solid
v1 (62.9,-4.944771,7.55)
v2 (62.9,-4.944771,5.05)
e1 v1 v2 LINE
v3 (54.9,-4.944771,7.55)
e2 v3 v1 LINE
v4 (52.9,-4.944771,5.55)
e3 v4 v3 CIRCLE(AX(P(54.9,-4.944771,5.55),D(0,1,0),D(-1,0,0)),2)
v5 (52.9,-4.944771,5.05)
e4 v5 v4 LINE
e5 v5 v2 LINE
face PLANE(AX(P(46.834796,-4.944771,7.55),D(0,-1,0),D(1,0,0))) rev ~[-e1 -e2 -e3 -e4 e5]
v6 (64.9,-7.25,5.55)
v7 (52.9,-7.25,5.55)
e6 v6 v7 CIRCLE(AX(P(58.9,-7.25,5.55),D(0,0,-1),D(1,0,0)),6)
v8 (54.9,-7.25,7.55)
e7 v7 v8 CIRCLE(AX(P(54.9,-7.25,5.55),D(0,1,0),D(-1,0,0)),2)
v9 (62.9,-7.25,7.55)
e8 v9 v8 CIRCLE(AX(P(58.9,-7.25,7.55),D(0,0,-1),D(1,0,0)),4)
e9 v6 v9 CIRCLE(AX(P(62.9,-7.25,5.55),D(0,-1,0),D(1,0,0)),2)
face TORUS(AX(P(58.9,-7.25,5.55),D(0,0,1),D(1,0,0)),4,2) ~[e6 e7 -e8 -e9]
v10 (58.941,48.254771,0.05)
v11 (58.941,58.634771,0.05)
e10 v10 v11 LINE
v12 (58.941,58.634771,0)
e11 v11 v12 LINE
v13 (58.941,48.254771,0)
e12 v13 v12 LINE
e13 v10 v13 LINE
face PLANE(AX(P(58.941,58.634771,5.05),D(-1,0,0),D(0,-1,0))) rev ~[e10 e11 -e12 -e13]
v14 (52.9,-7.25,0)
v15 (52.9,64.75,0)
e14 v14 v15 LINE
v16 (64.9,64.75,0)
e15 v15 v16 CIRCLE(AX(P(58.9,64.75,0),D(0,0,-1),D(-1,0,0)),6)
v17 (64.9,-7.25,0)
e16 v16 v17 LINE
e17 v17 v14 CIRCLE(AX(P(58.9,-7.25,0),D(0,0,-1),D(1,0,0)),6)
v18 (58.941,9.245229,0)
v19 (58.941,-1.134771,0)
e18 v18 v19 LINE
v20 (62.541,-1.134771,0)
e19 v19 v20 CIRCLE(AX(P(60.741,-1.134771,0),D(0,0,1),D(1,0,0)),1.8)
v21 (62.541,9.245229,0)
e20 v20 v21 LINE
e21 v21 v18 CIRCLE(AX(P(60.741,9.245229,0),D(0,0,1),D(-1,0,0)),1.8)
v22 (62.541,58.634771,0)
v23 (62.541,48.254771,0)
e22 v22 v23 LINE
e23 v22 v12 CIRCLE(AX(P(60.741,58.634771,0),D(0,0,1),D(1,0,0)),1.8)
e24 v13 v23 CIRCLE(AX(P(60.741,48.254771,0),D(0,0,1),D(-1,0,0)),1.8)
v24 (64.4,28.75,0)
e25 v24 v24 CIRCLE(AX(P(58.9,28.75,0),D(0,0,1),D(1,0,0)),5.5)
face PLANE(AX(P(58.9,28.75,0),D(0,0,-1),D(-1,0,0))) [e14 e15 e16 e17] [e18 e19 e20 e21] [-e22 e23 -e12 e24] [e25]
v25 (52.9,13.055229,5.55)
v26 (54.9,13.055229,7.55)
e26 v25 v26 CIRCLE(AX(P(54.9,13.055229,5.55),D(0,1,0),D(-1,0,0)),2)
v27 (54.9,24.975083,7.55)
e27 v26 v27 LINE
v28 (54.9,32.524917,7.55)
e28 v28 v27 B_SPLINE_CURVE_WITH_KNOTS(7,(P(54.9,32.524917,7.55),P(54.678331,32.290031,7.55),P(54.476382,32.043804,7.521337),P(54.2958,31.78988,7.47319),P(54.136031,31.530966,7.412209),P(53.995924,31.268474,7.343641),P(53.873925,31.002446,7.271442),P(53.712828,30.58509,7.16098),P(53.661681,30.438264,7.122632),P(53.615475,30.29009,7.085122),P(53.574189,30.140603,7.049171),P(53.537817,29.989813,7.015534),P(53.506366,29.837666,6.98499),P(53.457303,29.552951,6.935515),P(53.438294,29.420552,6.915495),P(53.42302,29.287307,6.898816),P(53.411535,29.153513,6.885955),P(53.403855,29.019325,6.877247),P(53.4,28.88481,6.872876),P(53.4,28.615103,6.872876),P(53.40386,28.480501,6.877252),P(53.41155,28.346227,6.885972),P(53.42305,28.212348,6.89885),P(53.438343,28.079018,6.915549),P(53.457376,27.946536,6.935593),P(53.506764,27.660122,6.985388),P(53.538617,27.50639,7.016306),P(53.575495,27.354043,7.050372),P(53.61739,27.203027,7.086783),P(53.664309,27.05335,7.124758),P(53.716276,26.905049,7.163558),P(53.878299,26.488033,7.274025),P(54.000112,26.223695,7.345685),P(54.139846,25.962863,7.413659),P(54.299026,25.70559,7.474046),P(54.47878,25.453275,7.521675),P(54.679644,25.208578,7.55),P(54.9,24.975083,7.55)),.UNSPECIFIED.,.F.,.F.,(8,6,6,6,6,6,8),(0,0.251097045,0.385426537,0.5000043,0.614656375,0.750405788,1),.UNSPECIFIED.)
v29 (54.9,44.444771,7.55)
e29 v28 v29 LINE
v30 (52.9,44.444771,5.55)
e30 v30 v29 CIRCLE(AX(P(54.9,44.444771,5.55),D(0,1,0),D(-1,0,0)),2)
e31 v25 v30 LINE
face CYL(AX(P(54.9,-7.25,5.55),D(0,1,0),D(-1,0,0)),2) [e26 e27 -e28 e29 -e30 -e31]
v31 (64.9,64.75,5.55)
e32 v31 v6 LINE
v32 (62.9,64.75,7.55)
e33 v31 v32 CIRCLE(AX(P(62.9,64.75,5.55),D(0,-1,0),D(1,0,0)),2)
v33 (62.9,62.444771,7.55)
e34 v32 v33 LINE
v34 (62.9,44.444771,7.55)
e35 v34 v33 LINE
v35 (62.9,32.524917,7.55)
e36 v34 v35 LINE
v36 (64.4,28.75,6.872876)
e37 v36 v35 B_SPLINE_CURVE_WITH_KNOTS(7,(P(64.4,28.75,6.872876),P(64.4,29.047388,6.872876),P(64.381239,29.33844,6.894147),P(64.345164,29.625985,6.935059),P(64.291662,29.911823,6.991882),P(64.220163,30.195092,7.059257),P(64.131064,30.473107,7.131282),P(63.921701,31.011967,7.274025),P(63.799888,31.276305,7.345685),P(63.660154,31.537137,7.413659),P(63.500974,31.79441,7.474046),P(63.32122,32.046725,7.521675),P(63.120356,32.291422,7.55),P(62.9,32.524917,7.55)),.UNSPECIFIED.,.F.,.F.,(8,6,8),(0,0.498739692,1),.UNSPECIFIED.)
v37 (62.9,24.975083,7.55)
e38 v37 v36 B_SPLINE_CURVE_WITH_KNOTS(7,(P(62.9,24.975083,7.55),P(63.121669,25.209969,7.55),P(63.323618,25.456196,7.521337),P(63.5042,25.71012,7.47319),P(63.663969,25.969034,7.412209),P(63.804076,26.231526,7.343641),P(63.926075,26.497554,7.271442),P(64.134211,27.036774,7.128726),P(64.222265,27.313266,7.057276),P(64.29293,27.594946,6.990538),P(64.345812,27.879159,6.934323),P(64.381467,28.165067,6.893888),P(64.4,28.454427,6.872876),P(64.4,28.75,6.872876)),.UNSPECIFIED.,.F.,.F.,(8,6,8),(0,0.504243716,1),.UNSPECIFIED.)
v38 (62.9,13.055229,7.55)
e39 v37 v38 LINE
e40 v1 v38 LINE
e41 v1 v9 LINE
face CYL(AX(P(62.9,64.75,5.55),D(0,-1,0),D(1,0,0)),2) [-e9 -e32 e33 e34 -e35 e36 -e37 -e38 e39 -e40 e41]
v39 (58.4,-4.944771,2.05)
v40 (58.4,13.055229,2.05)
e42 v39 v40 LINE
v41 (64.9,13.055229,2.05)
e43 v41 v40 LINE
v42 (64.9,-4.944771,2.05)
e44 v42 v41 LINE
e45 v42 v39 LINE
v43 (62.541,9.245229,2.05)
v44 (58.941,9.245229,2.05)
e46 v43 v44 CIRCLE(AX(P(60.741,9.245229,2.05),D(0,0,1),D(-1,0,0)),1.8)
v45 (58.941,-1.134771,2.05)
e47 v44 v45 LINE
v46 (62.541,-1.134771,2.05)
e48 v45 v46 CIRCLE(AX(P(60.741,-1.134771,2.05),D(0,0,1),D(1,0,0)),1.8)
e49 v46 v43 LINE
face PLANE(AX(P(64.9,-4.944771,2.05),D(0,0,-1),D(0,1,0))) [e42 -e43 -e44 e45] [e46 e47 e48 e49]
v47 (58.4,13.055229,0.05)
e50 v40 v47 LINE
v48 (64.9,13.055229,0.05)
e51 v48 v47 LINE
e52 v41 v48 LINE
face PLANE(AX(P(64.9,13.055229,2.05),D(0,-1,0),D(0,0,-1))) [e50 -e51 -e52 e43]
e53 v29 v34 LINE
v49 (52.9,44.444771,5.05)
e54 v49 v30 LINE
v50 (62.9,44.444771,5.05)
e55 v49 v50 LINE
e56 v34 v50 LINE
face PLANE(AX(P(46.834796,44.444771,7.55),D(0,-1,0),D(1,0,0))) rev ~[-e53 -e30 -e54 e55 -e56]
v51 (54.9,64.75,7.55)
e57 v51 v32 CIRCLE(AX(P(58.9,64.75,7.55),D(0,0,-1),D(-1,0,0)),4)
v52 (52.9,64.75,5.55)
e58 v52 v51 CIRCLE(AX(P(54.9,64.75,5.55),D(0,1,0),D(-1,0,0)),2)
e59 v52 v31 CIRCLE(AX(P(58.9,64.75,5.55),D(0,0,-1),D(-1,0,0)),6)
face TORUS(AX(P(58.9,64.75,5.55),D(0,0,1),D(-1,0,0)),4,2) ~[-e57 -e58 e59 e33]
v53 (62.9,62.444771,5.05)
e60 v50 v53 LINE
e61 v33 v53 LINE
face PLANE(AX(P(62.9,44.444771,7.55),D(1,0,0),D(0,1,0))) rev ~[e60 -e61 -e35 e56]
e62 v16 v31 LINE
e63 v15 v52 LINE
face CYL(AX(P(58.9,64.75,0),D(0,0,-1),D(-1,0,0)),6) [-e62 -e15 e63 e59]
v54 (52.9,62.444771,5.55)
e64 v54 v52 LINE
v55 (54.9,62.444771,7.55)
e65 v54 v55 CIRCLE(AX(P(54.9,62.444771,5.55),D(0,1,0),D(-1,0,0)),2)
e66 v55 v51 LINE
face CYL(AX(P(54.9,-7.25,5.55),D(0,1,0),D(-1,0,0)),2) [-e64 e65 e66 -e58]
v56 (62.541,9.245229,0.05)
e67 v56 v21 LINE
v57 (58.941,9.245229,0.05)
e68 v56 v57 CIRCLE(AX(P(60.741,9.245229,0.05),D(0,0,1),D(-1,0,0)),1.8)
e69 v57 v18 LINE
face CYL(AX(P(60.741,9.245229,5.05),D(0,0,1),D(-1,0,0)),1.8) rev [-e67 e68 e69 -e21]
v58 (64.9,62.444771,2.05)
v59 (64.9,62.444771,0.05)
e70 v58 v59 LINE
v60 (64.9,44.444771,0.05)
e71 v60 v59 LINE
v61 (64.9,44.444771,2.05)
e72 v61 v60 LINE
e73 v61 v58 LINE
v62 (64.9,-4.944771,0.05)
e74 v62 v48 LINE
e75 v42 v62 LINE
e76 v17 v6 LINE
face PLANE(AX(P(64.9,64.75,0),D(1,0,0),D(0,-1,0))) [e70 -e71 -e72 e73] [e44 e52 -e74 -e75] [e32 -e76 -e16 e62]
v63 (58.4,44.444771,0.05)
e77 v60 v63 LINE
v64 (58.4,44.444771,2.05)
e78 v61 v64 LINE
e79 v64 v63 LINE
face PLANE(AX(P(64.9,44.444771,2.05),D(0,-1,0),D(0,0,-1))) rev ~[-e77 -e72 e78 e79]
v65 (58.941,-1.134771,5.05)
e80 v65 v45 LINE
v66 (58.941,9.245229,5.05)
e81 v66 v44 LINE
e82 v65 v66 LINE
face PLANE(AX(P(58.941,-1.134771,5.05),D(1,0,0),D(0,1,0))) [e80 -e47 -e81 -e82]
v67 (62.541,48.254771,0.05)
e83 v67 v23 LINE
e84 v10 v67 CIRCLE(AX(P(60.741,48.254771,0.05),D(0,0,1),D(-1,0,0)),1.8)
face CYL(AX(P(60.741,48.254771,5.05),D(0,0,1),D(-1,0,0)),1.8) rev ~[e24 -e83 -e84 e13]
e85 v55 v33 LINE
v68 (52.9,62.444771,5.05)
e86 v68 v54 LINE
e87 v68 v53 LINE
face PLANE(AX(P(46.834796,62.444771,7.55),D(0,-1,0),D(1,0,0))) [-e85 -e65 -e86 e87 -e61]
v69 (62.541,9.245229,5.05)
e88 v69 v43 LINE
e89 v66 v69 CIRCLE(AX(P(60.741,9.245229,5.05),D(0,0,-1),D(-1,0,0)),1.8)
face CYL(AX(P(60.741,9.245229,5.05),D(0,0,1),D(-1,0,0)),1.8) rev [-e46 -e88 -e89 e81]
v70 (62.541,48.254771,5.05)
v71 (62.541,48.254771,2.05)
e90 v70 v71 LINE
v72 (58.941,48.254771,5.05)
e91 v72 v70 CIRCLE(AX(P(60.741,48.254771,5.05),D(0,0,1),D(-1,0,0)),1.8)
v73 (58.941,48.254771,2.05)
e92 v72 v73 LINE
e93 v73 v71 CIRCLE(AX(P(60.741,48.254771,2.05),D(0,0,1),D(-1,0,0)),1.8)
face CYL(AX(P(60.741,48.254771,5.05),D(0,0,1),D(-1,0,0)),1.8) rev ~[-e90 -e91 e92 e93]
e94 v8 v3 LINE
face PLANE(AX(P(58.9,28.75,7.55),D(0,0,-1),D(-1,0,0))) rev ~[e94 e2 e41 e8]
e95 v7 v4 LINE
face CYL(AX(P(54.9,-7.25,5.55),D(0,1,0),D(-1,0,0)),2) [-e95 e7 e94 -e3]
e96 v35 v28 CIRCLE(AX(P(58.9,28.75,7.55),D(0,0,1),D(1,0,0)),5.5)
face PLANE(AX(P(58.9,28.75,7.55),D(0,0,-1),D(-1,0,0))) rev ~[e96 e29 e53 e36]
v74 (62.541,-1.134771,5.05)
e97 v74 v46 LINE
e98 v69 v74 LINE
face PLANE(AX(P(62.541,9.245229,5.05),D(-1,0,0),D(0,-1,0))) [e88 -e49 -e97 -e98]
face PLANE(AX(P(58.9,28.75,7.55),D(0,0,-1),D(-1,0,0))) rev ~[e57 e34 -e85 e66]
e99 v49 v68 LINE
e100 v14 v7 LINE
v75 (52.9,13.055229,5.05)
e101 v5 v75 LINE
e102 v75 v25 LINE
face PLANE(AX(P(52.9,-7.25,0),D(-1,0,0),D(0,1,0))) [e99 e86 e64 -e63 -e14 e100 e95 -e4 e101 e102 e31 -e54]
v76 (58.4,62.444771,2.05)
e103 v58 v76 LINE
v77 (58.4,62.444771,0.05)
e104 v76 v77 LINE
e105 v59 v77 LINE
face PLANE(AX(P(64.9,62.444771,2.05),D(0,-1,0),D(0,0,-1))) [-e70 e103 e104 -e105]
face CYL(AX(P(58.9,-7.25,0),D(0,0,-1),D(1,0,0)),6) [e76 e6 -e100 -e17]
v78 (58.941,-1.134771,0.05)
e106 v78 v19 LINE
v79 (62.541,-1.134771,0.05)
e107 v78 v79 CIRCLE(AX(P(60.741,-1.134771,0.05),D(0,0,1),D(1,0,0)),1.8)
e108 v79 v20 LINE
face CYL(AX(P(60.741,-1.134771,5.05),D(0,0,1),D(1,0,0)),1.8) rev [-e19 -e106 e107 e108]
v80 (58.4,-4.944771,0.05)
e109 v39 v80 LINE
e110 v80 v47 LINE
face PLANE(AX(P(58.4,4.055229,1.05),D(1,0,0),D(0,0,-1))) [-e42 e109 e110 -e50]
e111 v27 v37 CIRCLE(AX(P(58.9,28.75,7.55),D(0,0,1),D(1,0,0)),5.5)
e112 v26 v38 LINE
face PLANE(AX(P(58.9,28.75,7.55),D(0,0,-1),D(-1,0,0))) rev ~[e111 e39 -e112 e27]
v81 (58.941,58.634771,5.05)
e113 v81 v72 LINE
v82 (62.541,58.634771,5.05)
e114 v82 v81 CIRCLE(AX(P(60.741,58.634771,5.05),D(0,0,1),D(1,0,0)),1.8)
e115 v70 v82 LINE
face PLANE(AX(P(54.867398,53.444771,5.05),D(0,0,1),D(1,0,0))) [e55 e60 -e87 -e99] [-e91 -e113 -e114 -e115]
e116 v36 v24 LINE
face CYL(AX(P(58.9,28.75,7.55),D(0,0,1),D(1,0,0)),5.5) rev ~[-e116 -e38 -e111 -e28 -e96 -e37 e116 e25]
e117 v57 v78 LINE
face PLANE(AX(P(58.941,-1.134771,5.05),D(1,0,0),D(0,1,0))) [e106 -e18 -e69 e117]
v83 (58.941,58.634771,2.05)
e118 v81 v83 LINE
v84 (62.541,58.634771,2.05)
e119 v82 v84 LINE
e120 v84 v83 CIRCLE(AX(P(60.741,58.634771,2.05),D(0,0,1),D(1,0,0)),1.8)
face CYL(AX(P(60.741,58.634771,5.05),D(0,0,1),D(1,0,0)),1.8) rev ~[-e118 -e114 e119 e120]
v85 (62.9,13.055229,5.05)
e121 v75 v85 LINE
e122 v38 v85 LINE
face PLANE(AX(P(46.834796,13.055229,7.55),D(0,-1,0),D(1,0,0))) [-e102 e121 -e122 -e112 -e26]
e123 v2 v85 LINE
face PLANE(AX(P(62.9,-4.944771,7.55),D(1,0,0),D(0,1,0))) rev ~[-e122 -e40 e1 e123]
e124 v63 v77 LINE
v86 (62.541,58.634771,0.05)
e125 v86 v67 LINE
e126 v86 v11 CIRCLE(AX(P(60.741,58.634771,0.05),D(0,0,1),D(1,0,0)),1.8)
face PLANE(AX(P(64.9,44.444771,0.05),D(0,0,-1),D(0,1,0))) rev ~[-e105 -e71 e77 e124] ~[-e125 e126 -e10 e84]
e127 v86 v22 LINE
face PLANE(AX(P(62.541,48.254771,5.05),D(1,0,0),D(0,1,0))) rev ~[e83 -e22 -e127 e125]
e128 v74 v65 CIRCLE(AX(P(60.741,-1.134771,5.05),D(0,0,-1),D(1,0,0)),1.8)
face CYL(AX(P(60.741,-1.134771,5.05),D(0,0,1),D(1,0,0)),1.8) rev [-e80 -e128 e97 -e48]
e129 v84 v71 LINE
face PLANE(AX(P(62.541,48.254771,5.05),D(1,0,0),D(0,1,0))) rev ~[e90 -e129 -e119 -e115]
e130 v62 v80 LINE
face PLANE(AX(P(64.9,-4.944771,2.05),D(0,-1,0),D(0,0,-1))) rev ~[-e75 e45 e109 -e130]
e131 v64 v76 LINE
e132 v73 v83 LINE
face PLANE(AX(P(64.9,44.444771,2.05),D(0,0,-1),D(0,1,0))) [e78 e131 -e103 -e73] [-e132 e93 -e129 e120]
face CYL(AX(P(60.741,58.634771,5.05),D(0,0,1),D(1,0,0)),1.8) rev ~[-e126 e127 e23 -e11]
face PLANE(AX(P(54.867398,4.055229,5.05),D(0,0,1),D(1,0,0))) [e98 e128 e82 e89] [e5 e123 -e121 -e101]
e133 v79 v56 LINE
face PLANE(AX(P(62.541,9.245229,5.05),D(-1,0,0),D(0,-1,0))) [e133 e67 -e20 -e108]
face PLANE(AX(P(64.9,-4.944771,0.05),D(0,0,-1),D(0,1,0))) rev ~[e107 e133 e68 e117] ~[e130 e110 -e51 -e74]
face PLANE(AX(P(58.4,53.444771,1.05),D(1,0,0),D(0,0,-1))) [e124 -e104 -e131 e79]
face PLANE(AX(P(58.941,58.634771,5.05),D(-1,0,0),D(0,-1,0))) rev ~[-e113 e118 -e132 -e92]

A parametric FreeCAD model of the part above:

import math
import FreeCAD as App
import Part
import Sketcher
Q = App.Units.Quantity


def edges_at(feature, points):
    """Names of the edges that pass closest to the given points."""
    edges = feature.Shape.Edges
    near = lambda p: min(range(len(edges)), key=lambda i: edges[i].distToShape(Part.Vertex(*p))[0])
    return sorted({f"Edge{near(p) + 1}" for p in points})


def add_polygon(sketch, points):
    """Adds a closed chain of lines whose ends are joined by coincident constraints."""
    first, n = sketch.GeometryCount, len(points)
    for a, b in zip(points, points[1:] + points[:1]):
        sketch.addGeometry(Part.LineSegment(App.Vector(*a, 0), App.Vector(*b, 0)), False)
    for i in range(n):
        sketch.addConstraint(Sketcher.Constraint("Coincident", first + i, 2, first + (i + 1) % n, 1))

doc = App.newDocument("Part")
body = doc.addObject("PartDesign::Body", "Body")

# Sketch on XY plane
sketch1 = doc.addObject("Sketcher::SketchObject", "Sketch")
body.addObject(sketch1)
sketch1.AttachmentSupport = (doc.XY_Plane, [""])
sketch1.MapMode = "FlatFace"
sketch1.addGeometry(Part.LineSegment(App.Vector(53, 65, 0), App.Vector(53, -7, 0)), False)
sketch1.addGeometry(Part.ArcOfCircle(Part.Circle(App.Vector(59, -7, 0), App.Vector(0, 0, 1), 6), math.radians(180), math.radians(360)), False)
sketch1.addGeometry(Part.LineSegment(App.Vector(65, -7, 0), App.Vector(65, 65, 0)), False)
sketch1.addGeometry(Part.ArcOfCircle(Part.Circle(App.Vector(59, 65, 0), App.Vector(0, 0, 1), 6), math.radians(0), math.radians(180)), False)
sketch1.addConstraint(Sketcher.Constraint("Tangent", 0, 2, 1, 1))
sketch1.addConstraint(Sketcher.Constraint("Tangent", 1, 2, 2, 1))
sketch1.addConstraint(Sketcher.Constraint("Tangent", 2, 2, 3, 1))
sketch1.addConstraint(Sketcher.Constraint("Tangent", 3, 2, 0, 1))
sketch1.addConstraint(Sketcher.Constraint("Vertical", 0))
sketch1.addConstraint(Sketcher.Constraint("Vertical", 2))
sketch1.addConstraint(Sketcher.Constraint("Radius", 1, Q("6 mm")))
sketch1.addConstraint(Sketcher.Constraint("DistanceY", 0, 2, 0, 1, Q("72 mm")))
sketch1.addConstraint(Sketcher.Constraint("DistanceX", -1, 1, 1, 3, Q("58.9 mm")))
sketch1.addConstraint(Sketcher.Constraint("DistanceY", 1, 3, -1, 1, Q("7.25 mm")))
pad1 = doc.addObject("PartDesign::Pad", "Pad")
body.addObject(pad1)
pad1.Profile = sketch1
pad1.Length = 7.55
doc.recompute()

fillet = doc.addObject("PartDesign::Fillet", "Fillet")
body.addObject(fillet)
fillet.Base = (pad1, edges_at(pad1, [
    (58.9, 70.75, 7.55),
    (64.9, 28.75, 7.55),
    (58.9, -13.25, 7.55),
    (52.9, 28.75, 7.55),
]))
fillet.Radius = 2

# Sketch on XY plane
sketch2 = doc.addObject("Sketcher::SketchObject", "Sketch001")
body.addObject(sketch2)
sketch2.AttachmentSupport = (doc.XY_Plane, [""])
sketch2.MapMode = "FlatFace"
sketch2.AttachmentOffset = App.Placement(App.Vector(0, 0, 7.55), App.Rotation())
add_polygon(sketch2, [(47, 13), (47, -5), (63, -5), (63, 13)])  # lines 0-3
add_polygon(sketch2, [(47, 62), (47, 44), (63, 44), (63, 62)])  # lines 4-7
sketch2.addConstraint(Sketcher.Constraint("Vertical", 0))
sketch2.addConstraint(Sketcher.Constraint("Horizontal", 1))
sketch2.addConstraint(Sketcher.Constraint("Vertical", 2))
sketch2.addConstraint(Sketcher.Constraint("Horizontal", 3))
sketch2.addConstraint(Sketcher.Constraint("Vertical", 4))
sketch2.addConstraint(Sketcher.Constraint("Horizontal", 5))
sketch2.addConstraint(Sketcher.Constraint("Vertical", 6))
sketch2.addConstraint(Sketcher.Constraint("Horizontal", 7))
sketch2.addConstraint(Sketcher.Constraint("Vertical", 3, 2, 4, 2))
sketch2.addConstraint(Sketcher.Constraint("Vertical", 2, 2, 5, 2))
sketch2.addConstraint(Sketcher.Constraint("Equal", 2, 4))
sketch2.addConstraint(Sketcher.Constraint("DistanceY", 0, 2, 0, 1, Q("18 mm")))
sketch2.addConstraint(Sketcher.Constraint("DistanceX", -1, 1, 1, 2, Q("62.9 mm")))
sketch2.addConstraint(Sketcher.Constraint("DistanceX", 1, 1, 1, 2, Q("16.065204 mm")))
sketch2.addConstraint(Sketcher.Constraint("DistanceY", 0, 2, -1, 1, Q("4.944771 mm")))
sketch2.addConstraint(Sketcher.Constraint("DistanceY", -1, 1, 4, 2, Q("44.444771 mm")))
pocket1 = doc.addObject("PartDesign::Pocket", "Pocket")
body.addObject(pocket1)
pocket1.Profile = sketch2
pocket1.Length = 2.5

# Sketch on XY plane
sketch3 = doc.addObject("Sketcher::SketchObject", "Sketch002")
body.addObject(sketch3)
sketch3.AttachmentSupport = (doc.XY_Plane, [""])
sketch3.MapMode = "FlatFace"
sketch3.AttachmentOffset = App.Placement(App.Vector(0, 0, 7.55), App.Rotation())
sketch3.addGeometry(Part.Circle(App.Vector(59, 29, 0), App.Vector(0, 0, 1), 6), False)
sketch3.addConstraint(Sketcher.Constraint("Diameter", 0, Q("11 mm")))
sketch3.addConstraint(Sketcher.Constraint("DistanceX", -1, 1, 0, 3, Q("58.9 mm")))
sketch3.addConstraint(Sketcher.Constraint("DistanceY", -1, 1, 0, 3, Q("28.75 mm")))
pocket2 = doc.addObject("PartDesign::Pocket", "Pocket001")
body.addObject(pocket2)
pocket2.Profile = sketch3
pocket2.Type = "ThroughAll"

# Sketch on YZ plane
sketch4 = doc.addObject("Sketcher::SketchObject", "Sketch003")
body.addObject(sketch4)
sketch4.AttachmentSupport = (doc.YZ_Plane, [""])
sketch4.MapMode = "FlatFace"
sketch4.AttachmentOffset = App.Placement(App.Vector(0, 0, 64.9), App.Rotation())
add_polygon(sketch4, [(13.1, 2), (-4.9, 2), (-4.9, 0.1), (13.1, 0.1)])  # lines 0-3
add_polygon(sketch4, [(62.4, 2), (44.4, 2), (44.4, 0.1), (62.4, 0.1)])  # lines 4-7
sketch4.addConstraint(Sketcher.Constraint("Horizontal", 0))
sketch4.addConstraint(Sketcher.Constraint("Vertical", 1))
sketch4.addConstraint(Sketcher.Constraint("Horizontal", 2))
sketch4.addConstraint(Sketcher.Constraint("Vertical", 3))
sketch4.addConstraint(Sketcher.Constraint("Horizontal", 4))
sketch4.addConstraint(Sketcher.Constraint("Vertical", 5))
sketch4.addConstraint(Sketcher.Constraint("Horizontal", 6))
sketch4.addConstraint(Sketcher.Constraint("Vertical", 7))
sketch4.addConstraint(Sketcher.Constraint("Horizontal", 3, 2, 4, 2))
sketch4.addConstraint(Sketcher.Constraint("Horizontal", 2, 2, 5, 2))
sketch4.addConstraint(Sketcher.Constraint("Equal", 2, 4))
sketch4.addConstraint(Sketcher.Constraint("DistanceX", 0, 2, 0, 1, Q("18 mm")))
sketch4.addConstraint(Sketcher.Constraint("DistanceY", 1, 2, 1, 1, Q("2 mm")))
sketch4.addConstraint(Sketcher.Constraint("DistanceY", -1, 1, 0, 2, Q("2.05 mm")))
sketch4.addConstraint(Sketcher.Constraint("DistanceX", 0, 2, -1, 1, Q("4.944771 mm")))
sketch4.addConstraint(Sketcher.Constraint("DistanceX", -1, 1, 4, 2, Q("44.444771 mm")))
pocket3 = doc.addObject("PartDesign::Pocket", "Pocket002")
body.addObject(pocket3)
pocket3.Profile = sketch4
pocket3.Length = 6.5

# Sketch on XY plane
sketch5 = doc.addObject("Sketcher::SketchObject", "Sketch004")
body.addObject(sketch5)
sketch5.AttachmentSupport = (doc.XY_Plane, [""])
sketch5.MapMode = "FlatFace"
sketch5.AttachmentOffset = App.Placement(App.Vector(0, 0, 5.05), App.Rotation())
sketch5.addGeometry(Part.LineSegment(App.Vector(62.5, -1.1, 0), App.Vector(62.5, 9.2, 0)), False)
sketch5.addGeometry(Part.ArcOfCircle(Part.Circle(App.Vector(60.7, 9.2, 0), App.Vector(0, 0, 1), 1.8), math.radians(0), math.radians(180)), False)
sketch5.addGeometry(Part.LineSegment(App.Vector(58.9, 9.2, 0), App.Vector(58.9, -1.1, 0)), False)
sketch5.addGeometry(Part.ArcOfCircle(Part.Circle(App.Vector(60.7, -1.1, 0), App.Vector(0, 0, 1), 1.8), math.radians(180), math.radians(360)), False)
sketch5.addGeometry(Part.LineSegment(App.Vector(62.5, 48.3, 0), App.Vector(62.5, 58.6, 0)), False)
sketch5.addGeometry(Part.ArcOfCircle(Part.Circle(App.Vector(60.7, 58.6, 0), App.Vector(0, 0, 1), 1.8), math.radians(0), math.radians(180)), False)
sketch5.addGeometry(Part.LineSegment(App.Vector(58.9, 58.6, 0), App.Vector(58.9, 48.3, 0)), False)
sketch5.addGeometry(Part.ArcOfCircle(Part.Circle(App.Vector(60.7, 48.3, 0), App.Vector(0, 0, 1), 1.8), math.radians(180), math.radians(360)), False)
sketch5.addConstraint(Sketcher.Constraint("Tangent", 0, 2, 1, 1))
sketch5.addConstraint(Sketcher.Constraint("Tangent", 1, 2, 2, 1))
sketch5.addConstraint(Sketcher.Constraint("Tangent", 2, 2, 3, 1))
sketch5.addConstraint(Sketcher.Constraint("Tangent", 3, 2, 0, 1))
sketch5.addConstraint(Sketcher.Constraint("Tangent", 4, 2, 5, 1))
sketch5.addConstraint(Sketcher.Constraint("Tangent", 5, 2, 6, 1))
sketch5.addConstraint(Sketcher.Constraint("Tangent", 6, 2, 7, 1))
sketch5.addConstraint(Sketcher.Constraint("Tangent", 7, 2, 4, 1))
sketch5.addConstraint(Sketcher.Constraint("Vertical", 0))
sketch5.addConstraint(Sketcher.Constraint("Vertical", 2))
sketch5.addConstraint(Sketcher.Constraint("Vertical", 4))
sketch5.addConstraint(Sketcher.Constraint("Vertical", 6))
sketch5.addConstraint(Sketcher.Constraint("Equal", 3, 5))
sketch5.addConstraint(Sketcher.Constraint("Vertical", 3, 3, 5, 3))
sketch5.addConstraint(Sketcher.Constraint("Equal", 2, 4))
sketch5.addConstraint(Sketcher.Constraint("Radius", 1, Q("1.8 mm")))
sketch5.addConstraint(Sketcher.Constraint("DistanceY", 0, 1, 0, 2, Q("10.38 mm")))
sketch5.addConstraint(Sketcher.Constraint("DistanceX", -1, 1, 1, 3, Q("60.741 mm")))
sketch5.addConstraint(Sketcher.Constraint("DistanceY", -1, 1, 1, 3, Q("9.245229 mm")))
sketch5.addConstraint(Sketcher.Constraint("DistanceY", -1, 1, 5, 3, Q("58.634771 mm")))
pocket4 = doc.addObject("PartDesign::Pocket", "Pocket003")
body.addObject(pocket4)
pocket4.Profile = sketch5
pocket4.Type = "ThroughAll"

doc.recompute()
